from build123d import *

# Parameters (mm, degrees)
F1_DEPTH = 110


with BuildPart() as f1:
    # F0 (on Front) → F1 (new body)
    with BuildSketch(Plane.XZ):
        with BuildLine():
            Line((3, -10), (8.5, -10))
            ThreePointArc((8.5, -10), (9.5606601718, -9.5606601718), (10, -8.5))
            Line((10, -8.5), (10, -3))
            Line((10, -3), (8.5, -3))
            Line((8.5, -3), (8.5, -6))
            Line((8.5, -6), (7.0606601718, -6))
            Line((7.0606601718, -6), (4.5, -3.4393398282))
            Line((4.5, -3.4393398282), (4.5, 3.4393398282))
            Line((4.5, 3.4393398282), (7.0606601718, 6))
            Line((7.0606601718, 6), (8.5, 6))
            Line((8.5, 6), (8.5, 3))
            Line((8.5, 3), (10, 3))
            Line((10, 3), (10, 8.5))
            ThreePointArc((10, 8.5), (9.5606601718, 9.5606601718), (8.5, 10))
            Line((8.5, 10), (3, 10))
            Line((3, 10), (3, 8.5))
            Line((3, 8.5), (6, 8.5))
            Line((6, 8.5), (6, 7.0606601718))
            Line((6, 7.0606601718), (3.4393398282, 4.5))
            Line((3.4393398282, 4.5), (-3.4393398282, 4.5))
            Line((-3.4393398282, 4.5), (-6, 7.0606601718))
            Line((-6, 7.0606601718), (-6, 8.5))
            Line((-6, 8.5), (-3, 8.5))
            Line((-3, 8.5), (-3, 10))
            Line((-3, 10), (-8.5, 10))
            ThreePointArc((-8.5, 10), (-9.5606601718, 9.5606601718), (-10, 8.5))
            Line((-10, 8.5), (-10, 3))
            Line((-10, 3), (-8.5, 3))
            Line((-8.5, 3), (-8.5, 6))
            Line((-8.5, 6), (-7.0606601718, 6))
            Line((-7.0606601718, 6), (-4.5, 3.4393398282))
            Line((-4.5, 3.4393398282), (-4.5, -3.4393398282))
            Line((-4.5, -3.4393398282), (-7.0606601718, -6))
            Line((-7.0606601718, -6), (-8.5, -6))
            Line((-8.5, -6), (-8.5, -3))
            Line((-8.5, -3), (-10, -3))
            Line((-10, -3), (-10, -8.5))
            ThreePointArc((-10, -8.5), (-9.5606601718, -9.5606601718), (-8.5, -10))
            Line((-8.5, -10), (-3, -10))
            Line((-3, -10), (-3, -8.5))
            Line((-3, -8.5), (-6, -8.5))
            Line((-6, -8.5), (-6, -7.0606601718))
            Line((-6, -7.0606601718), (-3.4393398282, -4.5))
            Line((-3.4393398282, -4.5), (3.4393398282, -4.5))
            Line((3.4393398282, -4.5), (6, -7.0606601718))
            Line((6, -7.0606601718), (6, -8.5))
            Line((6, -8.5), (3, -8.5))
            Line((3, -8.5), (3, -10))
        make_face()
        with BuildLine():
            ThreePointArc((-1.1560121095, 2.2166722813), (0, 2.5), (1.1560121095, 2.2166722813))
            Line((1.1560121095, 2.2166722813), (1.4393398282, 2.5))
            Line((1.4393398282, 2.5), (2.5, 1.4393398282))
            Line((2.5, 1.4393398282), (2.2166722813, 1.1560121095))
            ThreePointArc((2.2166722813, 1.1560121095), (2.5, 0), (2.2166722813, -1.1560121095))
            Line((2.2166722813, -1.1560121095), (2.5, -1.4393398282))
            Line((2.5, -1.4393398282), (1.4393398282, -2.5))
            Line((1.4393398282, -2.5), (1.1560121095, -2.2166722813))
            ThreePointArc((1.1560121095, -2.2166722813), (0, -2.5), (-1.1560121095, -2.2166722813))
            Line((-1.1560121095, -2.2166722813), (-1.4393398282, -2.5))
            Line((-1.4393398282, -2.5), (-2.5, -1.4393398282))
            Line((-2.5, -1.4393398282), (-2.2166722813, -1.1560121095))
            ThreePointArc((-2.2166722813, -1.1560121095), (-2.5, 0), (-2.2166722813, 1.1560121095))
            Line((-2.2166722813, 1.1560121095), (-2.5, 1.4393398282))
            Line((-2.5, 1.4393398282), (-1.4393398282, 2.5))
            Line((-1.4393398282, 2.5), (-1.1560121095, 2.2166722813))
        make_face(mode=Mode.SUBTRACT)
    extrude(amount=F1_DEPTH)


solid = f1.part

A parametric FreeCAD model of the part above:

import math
import FreeCAD as App
import Part
import Sketcher

doc = App.newDocument("Part")
body = doc.addObject("PartDesign::Body", "Body")

# Sketch on XZ plane
sketch1 = body.newObject("Sketcher::SketchObject", "Sketch")
sketch1.AttachmentSupport = (doc.getObject("XZ_Plane"), [""])
sketch1.MapMode = "FlatFace"
sketch1.addGeometry([
    Part.LineSegment(App.Vector(3, -10, 0), App.Vector(8.5, -10, 0)),  # 0
    Part.ArcOfCircle(Part.Circle(App.Vector(8.5, -8.5, 0), App.Vector(0, 0, 1), 1.5), math.radians(-90), math.radians(0)),  # 1
    Part.LineSegment(App.Vector(10, -8.5, 0), App.Vector(10, -3, 0)),  # 2
    Part.LineSegment(App.Vector(10, -3, 0), App.Vector(8.5, -3, 0)),  # 3
    Part.LineSegment(App.Vector(8.5, -3, 0), App.Vector(8.5, -6, 0)),  # 4
    Part.LineSegment(App.Vector(8.5, -6, 0), App.Vector(7.06, -6, 0)),  # 5
    Part.LineSegment(App.Vector(7.06, -6, 0), App.Vector(4.5, -3.44, 0)),  # 6
    Part.LineSegment(App.Vector(4.5, -3.44, 0), App.Vector(4.5, 3.44, 0)),  # 7
    Part.LineSegment(App.Vector(4.5, 3.44, 0), App.Vector(7.06, 6, 0)),  # 8
    Part.LineSegment(App.Vector(7.06, 6, 0), App.Vector(8.5, 6, 0)),  # 9
    Part.LineSegment(App.Vector(8.5, 6, 0), App.Vector(8.5, 3, 0)),  # 10
    Part.LineSegment(App.Vector(8.5, 3, 0), App.Vector(10, 3, 0)),  # 11
    Part.LineSegment(App.Vector(10, 3, 0), App.Vector(10, 8.5, 0)),  # 12
    Part.ArcOfCircle(Part.Circle(App.Vector(8.5, 8.5, 0), App.Vector(0, 0, 1), 1.5), math.radians(0), math.radians(90)),  # 13
    Part.LineSegment(App.Vector(8.5, 10, 0), App.Vector(3, 10, 0)),  # 14
    Part.LineSegment(App.Vector(3, 10, 0), App.Vector(3, 8.5, 0)),  # 15
    Part.LineSegment(App.Vector(3, 8.5, 0), App.Vector(6, 8.5, 0)),  # 16
    Part.LineSegment(App.Vector(6, 8.5, 0), App.Vector(6, 7.06, 0)),  # 17
    Part.LineSegment(App.Vector(6, 7.06, 0), App.Vector(3.44, 4.5, 0)),  # 18
    Part.LineSegment(App.Vector(3.44, 4.5, 0), App.Vector(-3.44, 4.5, 0)),  # 19
    Part.LineSegment(App.Vector(-3.44, 4.5, 0), App.Vector(-6, 7.06, 0)),  # 20
    Part.LineSegment(App.Vector(-6, 7.06, 0), App.Vector(-6, 8.5, 0)),  # 21
    Part.LineSegment(App.Vector(-6, 8.5, 0), App.Vector(-3, 8.5, 0)),  # 22
    Part.LineSegment(App.Vector(-3, 8.5, 0), App.Vector(-3, 10, 0)),  # 23
    Part.LineSegment(App.Vector(-3, 10, 0), App.Vector(-8.5, 10, 0)),  # 24
    Part.ArcOfCircle(Part.Circle(App.Vector(-8.5, 8.5, 0), App.Vector(0, 0, 1), 1.5), math.radians(90), math.radians(180)),  # 25
    Part.LineSegment(App.Vector(-10, 8.5, 0), App.Vector(-10, 3, 0)),  # 26
    Part.LineSegment(App.Vector(-10, 3, 0), App.Vector(-8.5, 3, 0)),  # 27
    Part.LineSegment(App.Vector(-8.5, 3, 0), App.Vector(-8.5, 6, 0)),  # 28
    Part.LineSegment(App.Vector(-8.5, 6, 0), App.Vector(-7.06, 6, 0)),  # 29
    Part.LineSegment(App.Vector(-7.06, 6, 0), App.Vector(-4.5, 3.44, 0)),  # 30
    Part.LineSegment(App.Vector(-4.5, 3.44, 0), App.Vector(-4.5, -3.44, 0)),  # 31
    Part.LineSegment(App.Vector(-4.5, -3.44, 0), App.Vector(-7.06, -6, 0)),  # 32
    Part.LineSegment(App.Vector(-7.06, -6, 0), App.Vector(-8.5, -6, 0)),  # 33
    Part.LineSegment(App.Vector(-8.5, -6, 0), App.Vector(-8.5, -3, 0)),  # 34
    Part.LineSegment(App.Vector(-8.5, -3, 0), App.Vector(-10, -3, 0)),  # 35
    Part.LineSegment(App.Vector(-10, -3, 0), App.Vector(-10, -8.5, 0)),  # 36
    Part.ArcOfCircle(Part.Circle(App.Vector(-8.5, -8.5, 0), App.Vector(0, 0, 1), 1.5), math.radians(180), math.radians(270)),  # 37
    Part.LineSegment(App.Vector(-8.5, -10, 0), App.Vector(-3, -10, 0)),  # 38
    Part.LineSegment(App.Vector(-3, -10, 0), App.Vector(-3, -8.5, 0)),  # 39
    Part.LineSegment(App.Vector(-3, -8.5, 0), App.Vector(-6, -8.5, 0)),  # 40
    Part.LineSegment(App.Vector(-6, -8.5, 0), App.Vector(-6, -7.06, 0)),  # 41
    Part.LineSegment(App.Vector(-6, -7.06, 0), App.Vector(-3.44, -4.5, 0)),  # 42
    Part.LineSegment(App.Vector(-3.44, -4.5, 0), App.Vector(3.44, -4.5, 0)),  # 43
    Part.LineSegment(App.Vector(3.44, -4.5, 0), App.Vector(6, -7.06, 0)),  # 44
    Part.LineSegment(App.Vector(6, -7.06, 0), App.Vector(6, -8.5, 0)),  # 45
    Part.LineSegment(App.Vector(6, -8.5, 0), App.Vector(3, -8.5, 0)),  # 46
    Part.LineSegment(App.Vector(3, -8.5, 0), App.Vector(3, -10, 0)),  # 47
    Part.LineSegment(App.Vector(-1.44, 2.5, 0), App.Vector(-1.16, 2.22, 0)),  # 48
    Part.ArcOfCircle(Part.Circle(App.Vector(0, 0, 0), App.Vector(0, 0, 1), 2.5), math.radians(62), math.radians(118)),  # 49
    Part.LineSegment(App.Vector(1.16, 2.22, 0), App.Vector(1.44, 2.5, 0)),  # 50
    Part.LineSegment(App.Vector(1.44, 2.5, 0), App.Vector(2.5, 1.44, 0)),  # 51
    Part.LineSegment(App.Vector(2.5, 1.44, 0), App.Vector(2.22, 1.16, 0)),  # 52
    Part.ArcOfCircle(Part.Circle(App.Vector(0, 0, 0), App.Vector(0, 0, 1), 2.5), math.radians(-28), math.radians(28)),  # 53
    Part.LineSegment(App.Vector(2.22, -1.16, 0), App.Vector(2.5, -1.44, 0)),  # 54
    Part.LineSegment(App.Vector(2.5, -1.44, 0), App.Vector(1.44, -2.5, 0)),  # 55
    Part.LineSegment(App.Vector(1.44, -2.5, 0), App.Vector(1.16, -2.22, 0)),  # 56
    Part.ArcOfCircle(Part.Circle(App.Vector(0, 0, 0), App.Vector(0, 0, 1), 2.5), math.radians(-118), math.radians(-62)),  # 57
    Part.LineSegment(App.Vector(-1.16, -2.22, 0), App.Vector(-1.44, -2.5, 0)),  # 58
    Part.LineSegment(App.Vector(-1.44, -2.5, 0), App.Vector(-2.5, -1.44, 0)),  # 59
    Part.LineSegment(App.Vector(-2.5, -1.44, 0), App.Vector(-2.22, -1.16, 0)),  # 60
    Part.ArcOfCircle(Part.Circle(App.Vector(0, 0, 0), App.Vector(0, 0, 1), 2.5), math.radians(152), math.radians(208)),  # 61
    Part.LineSegment(App.Vector(-2.22, 1.16, 0), App.Vector(-2.5, 1.44, 0)),  # 62
    Part.LineSegment(App.Vector(-2.5, 1.44, 0), App.Vector(-1.44, 2.5, 0)),  # 63
], False)
sketch1.addConstraint([
    Sketcher.Constraint("Tangent", 0, 2, 1, 1),
    Sketcher.Constraint("Tangent", 1, 2, 2, 1),
    Sketcher.Constraint("Coincident", 2, 2, 3, 1),
    Sketcher.Constraint("Coincident", 3, 2, 4, 1),
    Sketcher.Constraint("Coincident", 4, 2, 5, 1),
    Sketcher.Constraint("Coincident", 5, 2, 6, 1),
    Sketcher.Constraint("Coincident", 6, 2, 7, 1),
    Sketcher.Constraint("Coincident", 7, 2, 8, 1),
    Sketcher.Constraint("Coincident", 8, 2, 9, 1),
    Sketcher.Constraint("Coincident", 9, 2, 10, 1),
    Sketcher.Constraint("Coincident", 10, 2, 11, 1),
    Sketcher.Constraint("Coincident", 11, 2, 12, 1),
    Sketcher.Constraint("Tangent", 12, 2, 13, 1),
    Sketcher.Constraint("Tangent", 13, 2, 14, 1),
    Sketcher.Constraint("Coincident", 14, 2, 15, 1),
    Sketcher.Constraint("Coincident", 15, 2, 16, 1),
    Sketcher.Constraint("Coincident", 16, 2, 17, 1),
    Sketcher.Constraint("Coincident", 17, 2, 18, 1),
    Sketcher.Constraint("Coincident", 18, 2, 19, 1),
    Sketcher.Constraint("Coincident", 19, 2, 20, 1),
    Sketcher.Constraint("Coincident", 20, 2, 21, 1),
    Sketcher.Constraint("Coincident", 21, 2, 22, 1),
    Sketcher.Constraint("Coincident", 22, 2, 23, 1),
    Sketcher.Constraint("Coincident", 23, 2, 24, 1),
    Sketcher.Constraint("Tangent", 24, 2, 25, 1),
    Sketcher.Constraint("Tangent", 25, 2, 26, 1),
    Sketcher.Constraint("Coincident", 26, 2, 27, 1),
    Sketcher.Constraint("Coincident", 27, 2, 28, 1),
    Sketcher.Constraint("Coincident", 28, 2, 29, 1),
    Sketcher.Constraint("Coincident", 29, 2, 30, 1),
    Sketcher.Constraint("Coincident", 30, 2, 31, 1),
    Sketcher.Constraint("Coincident", 31, 2, 32, 1),
    Sketcher.Constraint("Coincident", 32, 2, 33, 1),
    Sketcher.Constraint("Coincident", 33, 2, 34, 1),
    Sketcher.Constraint("Coincident", 34, 2, 35, 1),
    Sketcher.Constraint("Coincident", 35, 2, 36, 1),
    Sketcher.Constraint("Tangent", 36, 2, 37, 1),
    Sketcher.Constraint("Tangent", 37, 2, 38, 1),
    Sketcher.Constraint("Coincident", 38, 2, 39, 1),
    Sketcher.Constraint("Coincident", 39, 2, 40, 1),
    Sketcher.Constraint("Coincident", 40, 2, 41, 1),
    Sketcher.Constraint("Coincident", 41, 2, 42, 1),
    Sketcher.Constraint("Coincident", 42, 2, 43, 1),
    Sketcher.Constraint("Coincident", 43, 2, 44, 1),
    Sketcher.Constraint("Coincident", 44, 2, 45, 1),
    Sketcher.Constraint("Coincident", 45, 2, 46, 1),
    Sketcher.Constraint("Coincident", 46, 2, 47, 1),
    Sketcher.Constraint("Coincident", 47, 2, 0, 1),
    Sketcher.Constraint("Coincident", 48, 2, 49, 2),
    Sketcher.Constraint("Coincident", 49, 1, 50, 1),
    Sketcher.Constraint("Coincident", 50, 2, 51, 1),
    Sketcher.Constraint("Coincident", 51, 2, 52, 1),
    Sketcher.Constraint("Coincident", 52, 2, 53, 2),
    Sketcher.Constraint("Coincident", 53, 1, 54, 1),
    Sketcher.Constraint("Coincident", 54, 2, 55, 1),
    Sketcher.Constraint("Coincident", 55, 2, 56, 1),
    Sketcher.Constraint("Coincident", 56, 2, 57, 2),
    Sketcher.Constraint("Coincident", 57, 1, 58, 1),
    Sketcher.Constraint("Coincident", 58, 2, 59, 1),
    Sketcher.Constraint("Coincident", 59, 2, 60, 1),
    Sketcher.Constraint("Coincident", 60, 2, 61, 2),
    Sketcher.Constraint("Coincident", 61, 1, 62, 1),
    Sketcher.Constraint("Coincident", 62, 2, 63, 1),
    Sketcher.Constraint("Coincident", 63, 2, 48, 1),
    Sketcher.Constraint("Horizontal", 0),
    Sketcher.Constraint("Vertical", 2),
    Sketcher.Constraint("Horizontal", 3),
    Sketcher.Constraint("Vertical", 4),
    Sketcher.Constraint("Horizontal", 5),
    Sketcher.Constraint("Vertical", 7),
    Sketcher.Constraint("Horizontal", 9),
    Sketcher.Constraint("Vertical", 10),
    Sketcher.Constraint("Horizontal", 11),
    Sketcher.Constraint("Vertical", 12),
    Sketcher.Constraint("Horizontal", 14),
    Sketcher.Constraint("Vertical", 15),
    Sketcher.Constraint("Horizontal", 16),
    Sketcher.Constraint("Vertical", 17),
    Sketcher.Constraint("Horizontal", 19),
    Sketcher.Constraint("Vertical", 21),
    Sketcher.Constraint("Horizontal", 22),
    Sketcher.Constraint("Vertical", 23),
    Sketcher.Constraint("Horizontal", 24),
    Sketcher.Constraint("Vertical", 26),
    Sketcher.Constraint("Horizontal", 27),
    Sketcher.Constraint("Vertical", 28),
    Sketcher.Constraint("Horizontal", 29),
    Sketcher.Constraint("Vertical", 31),
    Sketcher.Constraint("Horizontal", 33),
    Sketcher.Constraint("Vertical", 34),
    Sketcher.Constraint("Horizontal", 35),
    Sketcher.Constraint("Vertical", 36),
    Sketcher.Constraint("Horizontal", 38),
    Sketcher.Constraint("Vertical", 39),
    Sketcher.Constraint("Horizontal", 40),
    Sketcher.Constraint("Vertical", 41),
    Sketcher.Constraint("Horizontal", 43),
    Sketcher.Constraint("Vertical", 45),
    Sketcher.Constraint("Horizontal", 46),
    Sketcher.Constraint("Vertical", 47),
    Sketcher.Constraint("Coincident", 49, 3, -1, 1),
    Sketcher.Constraint("Coincident", 53, 3, -1, 1),
    Sketcher.Constraint("Coincident", 57, 3, -1, 1),
    Sketcher.Constraint("Coincident", 61, 3, -1, 1),
    Sketcher.Constraint("Equal", 1, 13),
    Sketcher.Constraint("Equal", 13, 25),
    Sketcher.Constraint("Equal", 25, 37),
    Sketcher.Constraint("Equal", 49, 53),
    Sketcher.Constraint("Equal", 53, 57),
    Sketcher.Constraint("Equal", 57, 61),
    Sketcher.Constraint("Symmetric", 1, 3, 25, 3, -1, 1),
    Sketcher.Constraint("Symmetric", 13, 3, 37, 3, -1, 1),
    Sketcher.Constraint("Symmetric", 3, 2, 27, 2, -1, 1),
    Sketcher.Constraint("Symmetric", 5, 2, 29, 2, -1, 1),
    Sketcher.Constraint("Symmetric", 6, 2, 30, 2, -1, 1),
    Sketcher.Constraint("Symmetric", 8, 2, 32, 2, -1, 1),
    Sketcher.Constraint("Symmetric", 10, 2, 34, 2, -1, 1),
    Sketcher.Constraint("Symmetric", 15, 2, 39, 2, -1, 1),
    Sketcher.Constraint("Symmetric", 17, 2, 41, 2, -1, 1),
    Sketcher.Constraint("Symmetric", 18, 2, 42, 2, -1, 1),
    Sketcher.Constraint("Symmetric", 20, 2, 44, 2, -1, 1),
    Sketcher.Constraint("Symmetric", 22, 2, 46, 2, -1, 1),
    Sketcher.Constraint("Symmetric", 50, 2, 58, 2, -1, 1),
    Sketcher.Constraint("Symmetric", 51, 2, 59, 2, -1, 1),
    Sketcher.Constraint("Symmetric", 54, 2, 62, 2, -1, 1),
    Sketcher.Constraint("Symmetric", 55, 2, 63, 2, -1, 1),
    Sketcher.Constraint("Symmetric", 13, 3, 25, 3, -2),
    Sketcher.Constraint("Symmetric", 17, 2, 20, 2, -2),
    Sketcher.Constraint("Symmetric", 15, 2, 22, 2, -2),
    Sketcher.Constraint("Symmetric", 10, 2, 27, 2, -2),
    Sketcher.Constraint("Symmetric", 8, 2, 29, 2, -2),
    Sketcher.Constraint("Symmetric", 55, 2, 58, 2, -2),
    Sketcher.Constraint("Symmetric", 54, 2, 59, 2, -2),
    Sketcher.Constraint("Perpendicular", 6, 8),
    Sketcher.Constraint("Parallel", 8, 18),
    Sketcher.Constraint("Perpendicular", 18, 20),
    Sketcher.Constraint("Perpendicular", 30, 32),
    Sketcher.Constraint("Perpendicular", 42, 44),
    Sketcher.Constraint("Parallel", 44, 48),
    Sketcher.Constraint("Perpendicular", 48, 50),
    Sketcher.Constraint("Perpendicular", 50, 51),
    Sketcher.Constraint("Perpendicular", 51, 52),
    Sketcher.Constraint("Perpendicular", 52, 54),
    Sketcher.Constraint("Perpendicular", 54, 55),
    Sketcher.Constraint("Perpendicular", 55, 56),
    Sketcher.Constraint("Perpendicular", 56, 58),
    Sketcher.Constraint("Perpendicular", 59, 60),
    Sketcher.Constraint("Perpendicular", 60, 62),
    Sketcher.Constraint("Horizontal", 12, 2, 15, 2),
    Sketcher.Constraint("Vertical", 0, 2, 3, 2),
    Sketcher.Constraint("Equal", 38, 2),
    Sketcher.Constraint("Equal", 46, 4),
    Sketcher.Constraint("Equal", 43, 7),
    Sketcher.Constraint("Equal", 33, 17),
    Sketcher.Constraint("Equal", 8, 18),
    Sketcher.Constraint("Equal", 50, 52),
    Sketcher.Constraint("Radius", 1, 1.5),
    Sketcher.Constraint("Radius", 49, 2.5),
    Sketcher.Constraint("DistanceX", 16, 1, 16, 2, 3.0),
    Sketcher.Constraint("DistanceX", 0, 1, 0, 2, 5.5),
    Sketcher.Constraint("DistanceY", 0, 2, -1, 1, 10.0),
    Sketcher.Constraint("Distance", 51, 1.5),
    Sketcher.Constraint("DistanceX", -1, 1, 6, 2, 4.5),
    Sketcher.Constraint("DistanceY", -1, 1, 50, 2, 2.5),
    Sketcher.Constraint("DistanceX", 5, 2, 5, 1, 1.43934),
])
pad1 = body.newObject("PartDesign::Pad", "Pad")
pad1.Profile = sketch1
pad1.Length = 110

doc.recompute()
